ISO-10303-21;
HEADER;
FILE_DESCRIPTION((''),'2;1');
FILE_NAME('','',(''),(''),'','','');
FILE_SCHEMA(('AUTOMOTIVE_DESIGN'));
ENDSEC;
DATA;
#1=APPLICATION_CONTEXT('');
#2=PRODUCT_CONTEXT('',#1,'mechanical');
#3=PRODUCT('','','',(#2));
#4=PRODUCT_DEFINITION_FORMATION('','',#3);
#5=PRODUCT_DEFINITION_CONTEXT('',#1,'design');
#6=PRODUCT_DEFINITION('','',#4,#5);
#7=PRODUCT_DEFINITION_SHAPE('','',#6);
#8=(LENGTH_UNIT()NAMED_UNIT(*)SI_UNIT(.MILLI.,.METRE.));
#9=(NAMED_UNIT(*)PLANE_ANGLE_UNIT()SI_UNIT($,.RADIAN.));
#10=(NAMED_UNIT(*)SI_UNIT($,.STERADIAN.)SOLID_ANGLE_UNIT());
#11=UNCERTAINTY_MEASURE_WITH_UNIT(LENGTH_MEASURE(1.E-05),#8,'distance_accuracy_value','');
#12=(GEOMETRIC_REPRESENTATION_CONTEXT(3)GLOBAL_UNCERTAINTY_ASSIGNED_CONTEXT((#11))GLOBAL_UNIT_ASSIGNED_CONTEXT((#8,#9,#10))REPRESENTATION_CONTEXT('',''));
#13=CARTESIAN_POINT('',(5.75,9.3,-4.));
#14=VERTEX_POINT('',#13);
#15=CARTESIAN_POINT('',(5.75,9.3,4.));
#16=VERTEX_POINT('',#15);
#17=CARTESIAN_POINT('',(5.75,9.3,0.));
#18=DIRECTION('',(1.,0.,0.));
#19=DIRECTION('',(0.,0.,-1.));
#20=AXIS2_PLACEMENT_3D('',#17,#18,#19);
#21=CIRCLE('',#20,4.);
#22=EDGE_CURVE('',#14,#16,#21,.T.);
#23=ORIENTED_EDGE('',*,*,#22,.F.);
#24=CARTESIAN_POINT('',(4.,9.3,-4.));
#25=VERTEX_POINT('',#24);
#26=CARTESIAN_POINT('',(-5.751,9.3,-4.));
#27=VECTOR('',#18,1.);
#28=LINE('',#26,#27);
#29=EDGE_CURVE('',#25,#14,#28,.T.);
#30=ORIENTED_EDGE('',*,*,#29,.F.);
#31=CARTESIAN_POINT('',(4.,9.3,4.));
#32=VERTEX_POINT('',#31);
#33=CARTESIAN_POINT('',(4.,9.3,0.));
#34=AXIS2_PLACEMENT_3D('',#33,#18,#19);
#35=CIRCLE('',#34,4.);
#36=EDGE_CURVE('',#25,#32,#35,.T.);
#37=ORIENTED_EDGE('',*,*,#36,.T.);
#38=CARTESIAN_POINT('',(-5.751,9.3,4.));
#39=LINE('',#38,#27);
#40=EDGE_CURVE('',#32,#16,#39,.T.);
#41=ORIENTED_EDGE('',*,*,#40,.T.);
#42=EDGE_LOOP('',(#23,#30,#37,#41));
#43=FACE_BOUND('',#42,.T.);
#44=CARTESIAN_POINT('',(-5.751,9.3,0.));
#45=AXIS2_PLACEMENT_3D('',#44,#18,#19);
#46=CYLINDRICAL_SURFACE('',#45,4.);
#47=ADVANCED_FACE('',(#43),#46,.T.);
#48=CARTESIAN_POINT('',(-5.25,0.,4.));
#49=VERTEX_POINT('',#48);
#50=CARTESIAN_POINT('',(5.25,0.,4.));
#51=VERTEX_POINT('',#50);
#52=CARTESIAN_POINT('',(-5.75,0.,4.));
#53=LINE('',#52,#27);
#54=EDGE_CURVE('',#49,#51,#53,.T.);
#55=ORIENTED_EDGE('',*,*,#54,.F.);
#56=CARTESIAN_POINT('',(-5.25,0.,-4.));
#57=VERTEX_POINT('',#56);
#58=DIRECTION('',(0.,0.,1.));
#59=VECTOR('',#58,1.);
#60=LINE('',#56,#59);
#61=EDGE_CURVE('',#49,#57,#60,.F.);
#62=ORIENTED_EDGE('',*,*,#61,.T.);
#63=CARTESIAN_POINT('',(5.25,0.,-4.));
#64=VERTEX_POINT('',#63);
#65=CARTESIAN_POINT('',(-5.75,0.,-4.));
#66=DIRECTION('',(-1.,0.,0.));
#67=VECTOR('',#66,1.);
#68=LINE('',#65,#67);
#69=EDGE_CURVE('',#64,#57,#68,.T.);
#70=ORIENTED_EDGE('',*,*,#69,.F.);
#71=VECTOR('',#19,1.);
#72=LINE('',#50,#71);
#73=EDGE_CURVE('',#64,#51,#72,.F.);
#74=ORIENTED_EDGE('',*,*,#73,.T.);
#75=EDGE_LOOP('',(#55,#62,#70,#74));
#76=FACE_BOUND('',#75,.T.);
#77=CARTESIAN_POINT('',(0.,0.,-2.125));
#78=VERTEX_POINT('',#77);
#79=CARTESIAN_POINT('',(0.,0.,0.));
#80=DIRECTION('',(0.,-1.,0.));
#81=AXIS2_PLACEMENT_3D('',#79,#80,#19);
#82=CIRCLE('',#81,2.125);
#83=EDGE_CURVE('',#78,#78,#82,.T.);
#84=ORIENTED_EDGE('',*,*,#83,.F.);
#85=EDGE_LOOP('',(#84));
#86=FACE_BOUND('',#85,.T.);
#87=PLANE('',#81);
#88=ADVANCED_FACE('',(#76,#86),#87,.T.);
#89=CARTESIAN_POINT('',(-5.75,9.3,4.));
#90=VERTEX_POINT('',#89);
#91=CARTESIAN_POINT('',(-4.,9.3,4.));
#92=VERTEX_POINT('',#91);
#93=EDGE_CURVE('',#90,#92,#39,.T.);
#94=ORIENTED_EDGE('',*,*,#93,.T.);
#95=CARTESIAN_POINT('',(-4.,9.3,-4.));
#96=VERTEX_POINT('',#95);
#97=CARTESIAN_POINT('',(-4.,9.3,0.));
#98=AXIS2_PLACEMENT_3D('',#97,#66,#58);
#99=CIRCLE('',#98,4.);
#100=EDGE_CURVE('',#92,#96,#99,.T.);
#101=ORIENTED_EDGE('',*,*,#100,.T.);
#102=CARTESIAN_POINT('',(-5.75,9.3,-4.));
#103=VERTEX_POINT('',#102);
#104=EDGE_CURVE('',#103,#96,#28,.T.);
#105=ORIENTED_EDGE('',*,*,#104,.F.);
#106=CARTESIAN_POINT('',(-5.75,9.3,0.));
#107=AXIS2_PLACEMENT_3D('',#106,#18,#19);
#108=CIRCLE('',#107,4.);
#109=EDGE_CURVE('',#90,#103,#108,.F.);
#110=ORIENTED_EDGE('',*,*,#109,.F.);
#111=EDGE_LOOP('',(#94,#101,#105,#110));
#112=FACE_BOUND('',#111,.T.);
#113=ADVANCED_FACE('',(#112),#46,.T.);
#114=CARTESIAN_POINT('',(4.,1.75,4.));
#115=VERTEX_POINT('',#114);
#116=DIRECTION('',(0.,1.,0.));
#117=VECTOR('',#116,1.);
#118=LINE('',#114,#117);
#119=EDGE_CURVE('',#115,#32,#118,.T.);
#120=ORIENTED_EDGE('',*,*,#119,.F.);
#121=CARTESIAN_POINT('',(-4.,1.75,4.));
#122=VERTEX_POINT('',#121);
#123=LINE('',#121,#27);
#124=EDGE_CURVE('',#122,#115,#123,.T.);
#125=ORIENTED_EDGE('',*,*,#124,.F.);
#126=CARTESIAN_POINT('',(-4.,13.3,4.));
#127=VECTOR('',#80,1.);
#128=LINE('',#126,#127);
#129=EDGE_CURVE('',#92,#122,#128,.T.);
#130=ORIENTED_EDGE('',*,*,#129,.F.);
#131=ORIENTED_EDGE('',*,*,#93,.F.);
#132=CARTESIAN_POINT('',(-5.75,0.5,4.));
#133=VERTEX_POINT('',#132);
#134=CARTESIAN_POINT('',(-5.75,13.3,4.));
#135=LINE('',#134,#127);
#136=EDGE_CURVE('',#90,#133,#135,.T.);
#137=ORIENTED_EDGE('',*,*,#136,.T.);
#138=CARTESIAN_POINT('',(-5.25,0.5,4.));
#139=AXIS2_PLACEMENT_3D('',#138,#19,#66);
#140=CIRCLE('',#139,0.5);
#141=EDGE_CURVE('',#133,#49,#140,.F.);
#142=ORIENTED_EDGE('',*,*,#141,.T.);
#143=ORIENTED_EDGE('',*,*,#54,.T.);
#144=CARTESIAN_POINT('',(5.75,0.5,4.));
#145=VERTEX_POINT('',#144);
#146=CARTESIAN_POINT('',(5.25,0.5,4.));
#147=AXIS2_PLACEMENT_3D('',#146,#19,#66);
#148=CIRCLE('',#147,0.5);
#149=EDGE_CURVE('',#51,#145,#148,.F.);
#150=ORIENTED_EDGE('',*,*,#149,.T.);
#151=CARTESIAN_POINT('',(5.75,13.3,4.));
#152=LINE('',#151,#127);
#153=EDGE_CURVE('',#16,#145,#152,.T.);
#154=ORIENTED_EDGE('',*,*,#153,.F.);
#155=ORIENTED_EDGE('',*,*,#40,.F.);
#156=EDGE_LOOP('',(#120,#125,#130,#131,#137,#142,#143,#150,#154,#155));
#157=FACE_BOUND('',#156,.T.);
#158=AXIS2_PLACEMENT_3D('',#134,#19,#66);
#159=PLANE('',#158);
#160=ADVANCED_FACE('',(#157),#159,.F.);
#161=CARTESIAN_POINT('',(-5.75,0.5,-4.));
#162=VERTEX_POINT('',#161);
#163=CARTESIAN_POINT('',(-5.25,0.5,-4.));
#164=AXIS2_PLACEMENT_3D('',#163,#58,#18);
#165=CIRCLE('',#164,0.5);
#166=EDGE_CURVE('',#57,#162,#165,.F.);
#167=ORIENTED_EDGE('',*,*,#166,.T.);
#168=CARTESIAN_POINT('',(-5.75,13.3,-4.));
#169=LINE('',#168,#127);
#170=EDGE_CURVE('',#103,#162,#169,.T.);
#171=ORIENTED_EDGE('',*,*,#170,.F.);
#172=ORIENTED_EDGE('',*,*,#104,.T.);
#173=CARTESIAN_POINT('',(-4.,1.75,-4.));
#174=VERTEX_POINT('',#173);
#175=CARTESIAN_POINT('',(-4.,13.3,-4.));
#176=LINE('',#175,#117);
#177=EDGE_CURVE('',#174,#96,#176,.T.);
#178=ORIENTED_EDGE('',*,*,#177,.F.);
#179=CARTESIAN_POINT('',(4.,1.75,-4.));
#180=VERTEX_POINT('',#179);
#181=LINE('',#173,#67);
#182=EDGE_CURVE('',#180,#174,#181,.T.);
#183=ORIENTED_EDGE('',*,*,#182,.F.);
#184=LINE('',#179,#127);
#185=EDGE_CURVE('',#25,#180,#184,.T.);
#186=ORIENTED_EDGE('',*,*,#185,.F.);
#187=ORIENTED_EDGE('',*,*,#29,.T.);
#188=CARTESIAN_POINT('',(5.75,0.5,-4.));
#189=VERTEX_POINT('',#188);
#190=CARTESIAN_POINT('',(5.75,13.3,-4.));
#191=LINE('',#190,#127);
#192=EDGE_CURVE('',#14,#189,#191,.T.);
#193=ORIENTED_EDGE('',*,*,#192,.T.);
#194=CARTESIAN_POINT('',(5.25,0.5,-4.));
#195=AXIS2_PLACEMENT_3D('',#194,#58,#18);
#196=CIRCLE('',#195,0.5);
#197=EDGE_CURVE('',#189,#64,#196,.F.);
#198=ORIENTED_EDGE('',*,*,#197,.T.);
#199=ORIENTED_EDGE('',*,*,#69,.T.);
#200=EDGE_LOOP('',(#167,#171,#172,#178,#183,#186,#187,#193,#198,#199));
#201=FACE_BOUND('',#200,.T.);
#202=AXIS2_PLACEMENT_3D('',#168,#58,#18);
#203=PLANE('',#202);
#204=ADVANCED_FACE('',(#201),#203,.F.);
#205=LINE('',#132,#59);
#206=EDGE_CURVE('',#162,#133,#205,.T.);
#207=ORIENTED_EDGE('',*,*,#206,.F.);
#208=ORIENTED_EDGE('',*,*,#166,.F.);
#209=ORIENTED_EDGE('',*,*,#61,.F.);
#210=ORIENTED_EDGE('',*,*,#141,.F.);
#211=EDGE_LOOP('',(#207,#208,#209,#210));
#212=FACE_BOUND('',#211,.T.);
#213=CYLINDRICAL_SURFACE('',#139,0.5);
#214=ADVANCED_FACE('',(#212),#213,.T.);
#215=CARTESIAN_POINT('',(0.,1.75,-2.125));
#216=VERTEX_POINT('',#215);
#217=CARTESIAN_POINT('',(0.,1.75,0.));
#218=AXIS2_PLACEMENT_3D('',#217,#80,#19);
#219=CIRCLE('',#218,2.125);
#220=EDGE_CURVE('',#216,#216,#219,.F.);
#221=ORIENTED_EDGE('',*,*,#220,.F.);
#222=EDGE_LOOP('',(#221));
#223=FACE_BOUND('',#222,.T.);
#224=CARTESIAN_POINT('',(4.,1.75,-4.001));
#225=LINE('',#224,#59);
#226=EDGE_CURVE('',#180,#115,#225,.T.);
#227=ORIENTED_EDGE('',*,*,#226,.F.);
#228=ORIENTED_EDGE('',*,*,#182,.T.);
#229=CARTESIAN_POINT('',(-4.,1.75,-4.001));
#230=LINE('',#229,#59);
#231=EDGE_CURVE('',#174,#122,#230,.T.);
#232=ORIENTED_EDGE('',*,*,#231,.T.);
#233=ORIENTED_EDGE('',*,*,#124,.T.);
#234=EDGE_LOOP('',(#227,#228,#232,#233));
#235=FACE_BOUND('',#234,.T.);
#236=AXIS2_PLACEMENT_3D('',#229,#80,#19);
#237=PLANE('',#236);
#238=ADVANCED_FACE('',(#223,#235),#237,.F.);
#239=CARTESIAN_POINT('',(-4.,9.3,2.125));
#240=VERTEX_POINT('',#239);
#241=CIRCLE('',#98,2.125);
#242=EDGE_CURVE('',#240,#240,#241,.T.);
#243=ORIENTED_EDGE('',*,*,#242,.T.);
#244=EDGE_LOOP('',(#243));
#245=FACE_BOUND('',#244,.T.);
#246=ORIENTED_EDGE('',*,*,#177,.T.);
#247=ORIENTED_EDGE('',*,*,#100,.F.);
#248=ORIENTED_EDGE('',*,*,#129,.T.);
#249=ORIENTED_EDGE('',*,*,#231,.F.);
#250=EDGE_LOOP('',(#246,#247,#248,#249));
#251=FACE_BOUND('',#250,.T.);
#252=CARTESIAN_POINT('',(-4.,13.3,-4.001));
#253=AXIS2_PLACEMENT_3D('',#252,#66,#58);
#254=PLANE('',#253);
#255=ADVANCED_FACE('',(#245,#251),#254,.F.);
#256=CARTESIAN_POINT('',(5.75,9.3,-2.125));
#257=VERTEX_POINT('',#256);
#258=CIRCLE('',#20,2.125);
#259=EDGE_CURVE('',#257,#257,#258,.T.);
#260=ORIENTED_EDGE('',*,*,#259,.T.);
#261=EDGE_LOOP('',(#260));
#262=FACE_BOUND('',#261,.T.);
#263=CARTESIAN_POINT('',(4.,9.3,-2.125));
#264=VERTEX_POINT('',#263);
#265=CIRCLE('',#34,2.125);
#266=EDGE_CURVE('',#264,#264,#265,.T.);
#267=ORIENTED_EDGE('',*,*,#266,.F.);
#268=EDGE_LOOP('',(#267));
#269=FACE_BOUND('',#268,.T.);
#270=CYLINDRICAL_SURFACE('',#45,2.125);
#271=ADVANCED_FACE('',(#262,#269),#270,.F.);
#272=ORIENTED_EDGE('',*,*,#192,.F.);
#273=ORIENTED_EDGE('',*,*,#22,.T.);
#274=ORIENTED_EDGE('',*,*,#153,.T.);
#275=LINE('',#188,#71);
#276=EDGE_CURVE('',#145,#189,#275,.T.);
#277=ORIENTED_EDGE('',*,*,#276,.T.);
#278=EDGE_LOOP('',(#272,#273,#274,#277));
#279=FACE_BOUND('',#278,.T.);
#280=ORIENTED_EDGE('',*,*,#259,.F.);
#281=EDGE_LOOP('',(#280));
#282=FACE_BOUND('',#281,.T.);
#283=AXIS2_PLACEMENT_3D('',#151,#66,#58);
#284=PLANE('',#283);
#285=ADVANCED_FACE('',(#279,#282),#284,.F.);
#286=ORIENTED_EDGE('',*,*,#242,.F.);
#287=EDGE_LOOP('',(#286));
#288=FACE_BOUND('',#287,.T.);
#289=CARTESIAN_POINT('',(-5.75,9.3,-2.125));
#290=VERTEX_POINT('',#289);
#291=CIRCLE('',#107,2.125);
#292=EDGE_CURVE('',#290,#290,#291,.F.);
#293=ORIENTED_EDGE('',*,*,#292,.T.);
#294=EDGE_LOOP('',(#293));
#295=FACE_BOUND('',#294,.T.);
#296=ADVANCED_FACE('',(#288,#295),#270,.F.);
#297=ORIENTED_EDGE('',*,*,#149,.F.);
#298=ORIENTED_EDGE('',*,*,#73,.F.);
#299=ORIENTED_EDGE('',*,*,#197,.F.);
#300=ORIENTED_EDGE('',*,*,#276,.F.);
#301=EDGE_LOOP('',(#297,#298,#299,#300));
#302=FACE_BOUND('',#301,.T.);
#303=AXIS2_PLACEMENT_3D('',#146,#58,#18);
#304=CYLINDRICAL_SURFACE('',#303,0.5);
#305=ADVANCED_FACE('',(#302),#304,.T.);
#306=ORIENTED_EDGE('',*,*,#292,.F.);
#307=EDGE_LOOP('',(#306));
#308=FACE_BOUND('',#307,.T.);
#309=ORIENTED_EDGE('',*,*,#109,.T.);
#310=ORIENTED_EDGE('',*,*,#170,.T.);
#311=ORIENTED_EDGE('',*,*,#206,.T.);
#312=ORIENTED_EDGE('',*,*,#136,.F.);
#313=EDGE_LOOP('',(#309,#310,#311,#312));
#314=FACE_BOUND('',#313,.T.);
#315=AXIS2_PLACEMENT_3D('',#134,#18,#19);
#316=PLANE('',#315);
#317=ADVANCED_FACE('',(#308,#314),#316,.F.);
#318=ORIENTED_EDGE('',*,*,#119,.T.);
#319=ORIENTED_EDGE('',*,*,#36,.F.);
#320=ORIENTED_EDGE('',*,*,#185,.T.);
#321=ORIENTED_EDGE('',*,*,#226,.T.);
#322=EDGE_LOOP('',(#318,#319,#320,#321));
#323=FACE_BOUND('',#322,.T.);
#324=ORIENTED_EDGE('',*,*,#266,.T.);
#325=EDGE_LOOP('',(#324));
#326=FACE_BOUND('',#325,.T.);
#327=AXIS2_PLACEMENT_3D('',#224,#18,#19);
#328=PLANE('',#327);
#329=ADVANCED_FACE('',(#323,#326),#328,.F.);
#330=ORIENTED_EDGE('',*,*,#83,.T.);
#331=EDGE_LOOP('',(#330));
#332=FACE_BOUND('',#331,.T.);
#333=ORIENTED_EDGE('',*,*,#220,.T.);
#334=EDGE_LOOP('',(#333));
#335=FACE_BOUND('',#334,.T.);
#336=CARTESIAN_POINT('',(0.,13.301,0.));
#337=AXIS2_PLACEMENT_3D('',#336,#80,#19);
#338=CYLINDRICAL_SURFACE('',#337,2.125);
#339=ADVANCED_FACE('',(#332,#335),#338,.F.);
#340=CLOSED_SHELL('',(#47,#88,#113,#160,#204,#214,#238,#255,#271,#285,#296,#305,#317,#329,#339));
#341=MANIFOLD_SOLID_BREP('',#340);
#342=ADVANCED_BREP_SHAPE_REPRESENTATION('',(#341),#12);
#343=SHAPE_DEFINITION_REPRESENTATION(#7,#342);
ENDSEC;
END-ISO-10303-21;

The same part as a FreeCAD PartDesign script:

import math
import FreeCAD as App
import Part
import Sketcher
from FreeCAD import Vector


def edges_at(feature, points):
    """Names of the edges that pass closest to the given points."""
    edges = feature.Shape.Edges
    near = lambda p: min(range(len(edges)), key=lambda i: edges[i].distToShape(Part.Vertex(*p))[0])
    return sorted({f"Edge{near(p) + 1}" for p in points})


def add_polygon(sketch, points):
    """Adds a closed chain of lines whose ends are joined by coincident constraints."""
    first, n = sketch.GeometryCount, len(points)
    for a, b in zip(points, points[1:] + points[:1]):
        sketch.addGeometry(Part.LineSegment(App.Vector(*a, 0), App.Vector(*b, 0)), False)
    for i in range(n):
        sketch.addConstraint(Sketcher.Constraint("Coincident", first + i, 2, first + (i + 1) % n, 1))

doc = App.newDocument("Part")
body = doc.addObject("PartDesign::Body", "Body")

# Sketch on XZ plane
sketch1 = doc.addObject("Sketcher::SketchObject", "Sketch")
body.addObject(sketch1)
sketch1.AttachmentSupport = (doc.XZ_Plane, [""])
sketch1.MapMode = "FlatFace"
add_polygon(sketch1, [(-6, -4), (-6, 4), (6, 4), (6, -4)])  # lines 0-3
sketch1.addConstraint(Sketcher.Constraint("Vertical", 0))
sketch1.addConstraint(Sketcher.Constraint("Horizontal", 1))
sketch1.addConstraint(Sketcher.Constraint("Vertical", 2))
sketch1.addConstraint(Sketcher.Constraint("Horizontal", 3))
sketch1.addConstraint(Sketcher.Constraint("Symmetric", 0, 2, 2, 2, -1, 1))
sketch1.addConstraint(Sketcher.Constraint("DistanceY", 0, 1, 0, 2, 8.0))
sketch1.addConstraint(Sketcher.Constraint("DistanceX", 1, 1, 1, 2, 11.5))
pad1 = doc.addObject("PartDesign::Pad", "Pad")
body.addObject(pad1)
pad1.Profile = sketch1
pad1.Length = 13.3
pad1.Reversed = True

# Sketch on YZ plane
sketch2 = doc.addObject("Sketcher::SketchObject", "Sketch001")
body.addObject(sketch2)
sketch2.AttachmentSupport = (doc.YZ_Plane, [""])
sketch2.MapMode = "FlatFace"
sketch2.AttachmentOffset = App.Placement(Vector(0, 0, 5.75), App.Rotation())
sketch2.addGeometry(Part.Circle(Vector(9.3, 0, 0), Vector(0, 0, 1), 2.1), False)
sketch2.addConstraint(Sketcher.Constraint("PointOnObject", 0, 3, -1))
sketch2.addConstraint(Sketcher.Constraint("Diameter", 0, 4.25))
sketch2.addConstraint(Sketcher.Constraint("DistanceX", -1, 1, 0, 3, 9.3))
pocket1 = doc.addObject("PartDesign::Pocket", "Pocket")
body.addObject(pocket1)
pocket1.Profile = sketch2
pocket1.Type = "UpToFirst"

# Sketch on YZ plane
sketch3 = doc.addObject("Sketcher::SketchObject", "Sketch002")
body.addObject(sketch3)
sketch3.AttachmentSupport = (doc.YZ_Plane, [""])
sketch3.MapMode = "FlatFace"
sketch3.AttachmentOffset = App.Placement(Vector(0, 0, 5.75), App.Rotation())
sketch3.addGeometry(Part.LineSegment(Vector(13.3, -4, 0), Vector(13.3, 0, 0)), False)
sketch3.addGeometry(Part.ArcOfCircle(Part.Circle(Vector(9.3, 0, 0), Vector(0, 0, 1), 4), math.radians(-90), math.radians(0)), False)
sketch3.addGeometry(Part.LineSegment(Vector(9.3, -4, 0), Vector(13.3, -4, 0)), False)
sketch3.addConstraint(Sketcher.Constraint("Tangent", 0, 2, 1, 2))
sketch3.addConstraint(Sketcher.Constraint("Tangent", 1, 1, 2, 1))
sketch3.addConstraint(Sketcher.Constraint("Coincident", 2, 2, 0, 1))
sketch3.addConstraint(Sketcher.Constraint("Vertical", 0))
sketch3.addConstraint(Sketcher.Constraint("Horizontal", 2))
sketch3.addConstraint(Sketcher.Constraint("PointOnObject", 1, 3, -1))
sketch3.addConstraint(Sketcher.Constraint("Radius", 1, 4.0))
sketch3.addConstraint(Sketcher.Constraint("DistanceX", -1, 1, 1, 3, 9.3))
pocket2 = doc.addObject("PartDesign::Pocket", "Pocket001")
body.addObject(pocket2)
pocket2.Profile = sketch3
pocket2.Type = "UpToFirst"

# Sketch on YZ plane
sketch4 = doc.addObject("Sketcher::SketchObject", "Sketch003")
body.addObject(sketch4)
sketch4.AttachmentSupport = (doc.YZ_Plane, [""])
sketch4.MapMode = "FlatFace"
sketch4.AttachmentOffset = App.Placement(Vector(0, 0, 5.75), App.Rotation())
sketch4.addGeometry(Part.LineSegment(Vector(13.3, 0, 0), Vector(13.3, 4, 0)), False)
sketch4.addGeometry(Part.LineSegment(Vector(13.3, 4, 0), Vector(9.3, 4, 0)), False)
sketch4.addGeometry(Part.ArcOfCircle(Part.Circle(Vector(9.3, 0, 0), Vector(0, 0, 1), 4), math.radians(0), math.radians(90)), False)
sketch4.addConstraint(Sketcher.Constraint("Coincident", 0, 2, 1, 1))
sketch4.addConstraint(Sketcher.Constraint("Tangent", 1, 2, 2, 2))
sketch4.addConstraint(Sketcher.Constraint("Tangent", 2, 1, 0, 1))
sketch4.addConstraint(Sketcher.Constraint("Vertical", 0))
sketch4.addConstraint(Sketcher.Constraint("Horizontal", 1))
sketch4.addConstraint(Sketcher.Constraint("PointOnObject", 2, 3, -1))
sketch4.addConstraint(Sketcher.Constraint("Radius", 2, 4.0))
sketch4.addConstraint(Sketcher.Constraint("DistanceX", -1, 1, 2, 3, 9.3))
pocket3 = doc.addObject("PartDesign::Pocket", "Pocket002")
body.addObject(pocket3)
pocket3.Profile = sketch4
pocket3.Type = "UpToFirst"

# Sketch on XY plane
sketch5 = doc.addObject("Sketcher::SketchObject", "Sketch004")
body.addObject(sketch5)
sketch5.AttachmentSupport = (doc.XY_Plane, [""])
sketch5.MapMode = "FlatFace"
sketch5.AttachmentOffset = App.Placement(Vector(0, 0, 4), App.Rotation())
add_polygon(sketch5, [(-4, 13), (-4, 2), (4, 2), (4, 13)])  # lines 0-3
sketch5.addConstraint(Sketcher.Constraint("Vertical", 0))
sketch5.addConstraint(Sketcher.Constraint("Horizontal", 1))
sketch5.addConstraint(Sketcher.Constraint("Vertical", 2))
sketch5.addConstraint(Sketcher.Constraint("Horizontal", 3))
sketch5.addConstraint(Sketcher.Constraint("DistanceX", 1, 1, 1, 2, 8.0))
sketch5.addConstraint(Sketcher.Constraint("DistanceX", 0, 2, -1, 1, 4.0))
sketch5.addConstraint(Sketcher.Constraint("DistanceY", 0, 2, 0, 1, 11.55))
sketch5.addConstraint(Sketcher.Constraint("DistanceY", -1, 1, 2, 2, 13.3))
pocket4 = doc.addObject("PartDesign::Pocket", "Pocket003")
body.addObject(pocket4)
pocket4.Profile = sketch5
pocket4.Type = "UpToFirst"

# Sketch on XZ plane
sketch6 = doc.addObject("Sketcher::SketchObject", "Sketch005")
body.addObject(sketch6)
sketch6.AttachmentSupport = (doc.XZ_Plane, [""])
sketch6.MapMode = "FlatFace"
sketch6.addGeometry(Part.Circle(Vector(0, 0, 0), Vector(0, 0, 1), 2.1), False)
sketch6.addConstraint(Sketcher.Constraint("Coincident", 0, 3, -1, 1))
sketch6.addConstraint(Sketcher.Constraint("Diameter", 0, 4.25))
pocket5 = doc.addObject("PartDesign::Pocket", "Pocket004")
body.addObject(pocket5)
pocket5.Profile = sketch6
pocket5.Type = "UpToFirst"
doc.recompute()

fillet = doc.addObject("PartDesign::Fillet", "Fillet")
body.addObject(fillet)
fillet.Base = (pocket5, edges_at(pocket5, [(5.75, 0, 0), (-5.75, 0, 0)]))
fillet.Radius = 0.5

doc.recompute()
